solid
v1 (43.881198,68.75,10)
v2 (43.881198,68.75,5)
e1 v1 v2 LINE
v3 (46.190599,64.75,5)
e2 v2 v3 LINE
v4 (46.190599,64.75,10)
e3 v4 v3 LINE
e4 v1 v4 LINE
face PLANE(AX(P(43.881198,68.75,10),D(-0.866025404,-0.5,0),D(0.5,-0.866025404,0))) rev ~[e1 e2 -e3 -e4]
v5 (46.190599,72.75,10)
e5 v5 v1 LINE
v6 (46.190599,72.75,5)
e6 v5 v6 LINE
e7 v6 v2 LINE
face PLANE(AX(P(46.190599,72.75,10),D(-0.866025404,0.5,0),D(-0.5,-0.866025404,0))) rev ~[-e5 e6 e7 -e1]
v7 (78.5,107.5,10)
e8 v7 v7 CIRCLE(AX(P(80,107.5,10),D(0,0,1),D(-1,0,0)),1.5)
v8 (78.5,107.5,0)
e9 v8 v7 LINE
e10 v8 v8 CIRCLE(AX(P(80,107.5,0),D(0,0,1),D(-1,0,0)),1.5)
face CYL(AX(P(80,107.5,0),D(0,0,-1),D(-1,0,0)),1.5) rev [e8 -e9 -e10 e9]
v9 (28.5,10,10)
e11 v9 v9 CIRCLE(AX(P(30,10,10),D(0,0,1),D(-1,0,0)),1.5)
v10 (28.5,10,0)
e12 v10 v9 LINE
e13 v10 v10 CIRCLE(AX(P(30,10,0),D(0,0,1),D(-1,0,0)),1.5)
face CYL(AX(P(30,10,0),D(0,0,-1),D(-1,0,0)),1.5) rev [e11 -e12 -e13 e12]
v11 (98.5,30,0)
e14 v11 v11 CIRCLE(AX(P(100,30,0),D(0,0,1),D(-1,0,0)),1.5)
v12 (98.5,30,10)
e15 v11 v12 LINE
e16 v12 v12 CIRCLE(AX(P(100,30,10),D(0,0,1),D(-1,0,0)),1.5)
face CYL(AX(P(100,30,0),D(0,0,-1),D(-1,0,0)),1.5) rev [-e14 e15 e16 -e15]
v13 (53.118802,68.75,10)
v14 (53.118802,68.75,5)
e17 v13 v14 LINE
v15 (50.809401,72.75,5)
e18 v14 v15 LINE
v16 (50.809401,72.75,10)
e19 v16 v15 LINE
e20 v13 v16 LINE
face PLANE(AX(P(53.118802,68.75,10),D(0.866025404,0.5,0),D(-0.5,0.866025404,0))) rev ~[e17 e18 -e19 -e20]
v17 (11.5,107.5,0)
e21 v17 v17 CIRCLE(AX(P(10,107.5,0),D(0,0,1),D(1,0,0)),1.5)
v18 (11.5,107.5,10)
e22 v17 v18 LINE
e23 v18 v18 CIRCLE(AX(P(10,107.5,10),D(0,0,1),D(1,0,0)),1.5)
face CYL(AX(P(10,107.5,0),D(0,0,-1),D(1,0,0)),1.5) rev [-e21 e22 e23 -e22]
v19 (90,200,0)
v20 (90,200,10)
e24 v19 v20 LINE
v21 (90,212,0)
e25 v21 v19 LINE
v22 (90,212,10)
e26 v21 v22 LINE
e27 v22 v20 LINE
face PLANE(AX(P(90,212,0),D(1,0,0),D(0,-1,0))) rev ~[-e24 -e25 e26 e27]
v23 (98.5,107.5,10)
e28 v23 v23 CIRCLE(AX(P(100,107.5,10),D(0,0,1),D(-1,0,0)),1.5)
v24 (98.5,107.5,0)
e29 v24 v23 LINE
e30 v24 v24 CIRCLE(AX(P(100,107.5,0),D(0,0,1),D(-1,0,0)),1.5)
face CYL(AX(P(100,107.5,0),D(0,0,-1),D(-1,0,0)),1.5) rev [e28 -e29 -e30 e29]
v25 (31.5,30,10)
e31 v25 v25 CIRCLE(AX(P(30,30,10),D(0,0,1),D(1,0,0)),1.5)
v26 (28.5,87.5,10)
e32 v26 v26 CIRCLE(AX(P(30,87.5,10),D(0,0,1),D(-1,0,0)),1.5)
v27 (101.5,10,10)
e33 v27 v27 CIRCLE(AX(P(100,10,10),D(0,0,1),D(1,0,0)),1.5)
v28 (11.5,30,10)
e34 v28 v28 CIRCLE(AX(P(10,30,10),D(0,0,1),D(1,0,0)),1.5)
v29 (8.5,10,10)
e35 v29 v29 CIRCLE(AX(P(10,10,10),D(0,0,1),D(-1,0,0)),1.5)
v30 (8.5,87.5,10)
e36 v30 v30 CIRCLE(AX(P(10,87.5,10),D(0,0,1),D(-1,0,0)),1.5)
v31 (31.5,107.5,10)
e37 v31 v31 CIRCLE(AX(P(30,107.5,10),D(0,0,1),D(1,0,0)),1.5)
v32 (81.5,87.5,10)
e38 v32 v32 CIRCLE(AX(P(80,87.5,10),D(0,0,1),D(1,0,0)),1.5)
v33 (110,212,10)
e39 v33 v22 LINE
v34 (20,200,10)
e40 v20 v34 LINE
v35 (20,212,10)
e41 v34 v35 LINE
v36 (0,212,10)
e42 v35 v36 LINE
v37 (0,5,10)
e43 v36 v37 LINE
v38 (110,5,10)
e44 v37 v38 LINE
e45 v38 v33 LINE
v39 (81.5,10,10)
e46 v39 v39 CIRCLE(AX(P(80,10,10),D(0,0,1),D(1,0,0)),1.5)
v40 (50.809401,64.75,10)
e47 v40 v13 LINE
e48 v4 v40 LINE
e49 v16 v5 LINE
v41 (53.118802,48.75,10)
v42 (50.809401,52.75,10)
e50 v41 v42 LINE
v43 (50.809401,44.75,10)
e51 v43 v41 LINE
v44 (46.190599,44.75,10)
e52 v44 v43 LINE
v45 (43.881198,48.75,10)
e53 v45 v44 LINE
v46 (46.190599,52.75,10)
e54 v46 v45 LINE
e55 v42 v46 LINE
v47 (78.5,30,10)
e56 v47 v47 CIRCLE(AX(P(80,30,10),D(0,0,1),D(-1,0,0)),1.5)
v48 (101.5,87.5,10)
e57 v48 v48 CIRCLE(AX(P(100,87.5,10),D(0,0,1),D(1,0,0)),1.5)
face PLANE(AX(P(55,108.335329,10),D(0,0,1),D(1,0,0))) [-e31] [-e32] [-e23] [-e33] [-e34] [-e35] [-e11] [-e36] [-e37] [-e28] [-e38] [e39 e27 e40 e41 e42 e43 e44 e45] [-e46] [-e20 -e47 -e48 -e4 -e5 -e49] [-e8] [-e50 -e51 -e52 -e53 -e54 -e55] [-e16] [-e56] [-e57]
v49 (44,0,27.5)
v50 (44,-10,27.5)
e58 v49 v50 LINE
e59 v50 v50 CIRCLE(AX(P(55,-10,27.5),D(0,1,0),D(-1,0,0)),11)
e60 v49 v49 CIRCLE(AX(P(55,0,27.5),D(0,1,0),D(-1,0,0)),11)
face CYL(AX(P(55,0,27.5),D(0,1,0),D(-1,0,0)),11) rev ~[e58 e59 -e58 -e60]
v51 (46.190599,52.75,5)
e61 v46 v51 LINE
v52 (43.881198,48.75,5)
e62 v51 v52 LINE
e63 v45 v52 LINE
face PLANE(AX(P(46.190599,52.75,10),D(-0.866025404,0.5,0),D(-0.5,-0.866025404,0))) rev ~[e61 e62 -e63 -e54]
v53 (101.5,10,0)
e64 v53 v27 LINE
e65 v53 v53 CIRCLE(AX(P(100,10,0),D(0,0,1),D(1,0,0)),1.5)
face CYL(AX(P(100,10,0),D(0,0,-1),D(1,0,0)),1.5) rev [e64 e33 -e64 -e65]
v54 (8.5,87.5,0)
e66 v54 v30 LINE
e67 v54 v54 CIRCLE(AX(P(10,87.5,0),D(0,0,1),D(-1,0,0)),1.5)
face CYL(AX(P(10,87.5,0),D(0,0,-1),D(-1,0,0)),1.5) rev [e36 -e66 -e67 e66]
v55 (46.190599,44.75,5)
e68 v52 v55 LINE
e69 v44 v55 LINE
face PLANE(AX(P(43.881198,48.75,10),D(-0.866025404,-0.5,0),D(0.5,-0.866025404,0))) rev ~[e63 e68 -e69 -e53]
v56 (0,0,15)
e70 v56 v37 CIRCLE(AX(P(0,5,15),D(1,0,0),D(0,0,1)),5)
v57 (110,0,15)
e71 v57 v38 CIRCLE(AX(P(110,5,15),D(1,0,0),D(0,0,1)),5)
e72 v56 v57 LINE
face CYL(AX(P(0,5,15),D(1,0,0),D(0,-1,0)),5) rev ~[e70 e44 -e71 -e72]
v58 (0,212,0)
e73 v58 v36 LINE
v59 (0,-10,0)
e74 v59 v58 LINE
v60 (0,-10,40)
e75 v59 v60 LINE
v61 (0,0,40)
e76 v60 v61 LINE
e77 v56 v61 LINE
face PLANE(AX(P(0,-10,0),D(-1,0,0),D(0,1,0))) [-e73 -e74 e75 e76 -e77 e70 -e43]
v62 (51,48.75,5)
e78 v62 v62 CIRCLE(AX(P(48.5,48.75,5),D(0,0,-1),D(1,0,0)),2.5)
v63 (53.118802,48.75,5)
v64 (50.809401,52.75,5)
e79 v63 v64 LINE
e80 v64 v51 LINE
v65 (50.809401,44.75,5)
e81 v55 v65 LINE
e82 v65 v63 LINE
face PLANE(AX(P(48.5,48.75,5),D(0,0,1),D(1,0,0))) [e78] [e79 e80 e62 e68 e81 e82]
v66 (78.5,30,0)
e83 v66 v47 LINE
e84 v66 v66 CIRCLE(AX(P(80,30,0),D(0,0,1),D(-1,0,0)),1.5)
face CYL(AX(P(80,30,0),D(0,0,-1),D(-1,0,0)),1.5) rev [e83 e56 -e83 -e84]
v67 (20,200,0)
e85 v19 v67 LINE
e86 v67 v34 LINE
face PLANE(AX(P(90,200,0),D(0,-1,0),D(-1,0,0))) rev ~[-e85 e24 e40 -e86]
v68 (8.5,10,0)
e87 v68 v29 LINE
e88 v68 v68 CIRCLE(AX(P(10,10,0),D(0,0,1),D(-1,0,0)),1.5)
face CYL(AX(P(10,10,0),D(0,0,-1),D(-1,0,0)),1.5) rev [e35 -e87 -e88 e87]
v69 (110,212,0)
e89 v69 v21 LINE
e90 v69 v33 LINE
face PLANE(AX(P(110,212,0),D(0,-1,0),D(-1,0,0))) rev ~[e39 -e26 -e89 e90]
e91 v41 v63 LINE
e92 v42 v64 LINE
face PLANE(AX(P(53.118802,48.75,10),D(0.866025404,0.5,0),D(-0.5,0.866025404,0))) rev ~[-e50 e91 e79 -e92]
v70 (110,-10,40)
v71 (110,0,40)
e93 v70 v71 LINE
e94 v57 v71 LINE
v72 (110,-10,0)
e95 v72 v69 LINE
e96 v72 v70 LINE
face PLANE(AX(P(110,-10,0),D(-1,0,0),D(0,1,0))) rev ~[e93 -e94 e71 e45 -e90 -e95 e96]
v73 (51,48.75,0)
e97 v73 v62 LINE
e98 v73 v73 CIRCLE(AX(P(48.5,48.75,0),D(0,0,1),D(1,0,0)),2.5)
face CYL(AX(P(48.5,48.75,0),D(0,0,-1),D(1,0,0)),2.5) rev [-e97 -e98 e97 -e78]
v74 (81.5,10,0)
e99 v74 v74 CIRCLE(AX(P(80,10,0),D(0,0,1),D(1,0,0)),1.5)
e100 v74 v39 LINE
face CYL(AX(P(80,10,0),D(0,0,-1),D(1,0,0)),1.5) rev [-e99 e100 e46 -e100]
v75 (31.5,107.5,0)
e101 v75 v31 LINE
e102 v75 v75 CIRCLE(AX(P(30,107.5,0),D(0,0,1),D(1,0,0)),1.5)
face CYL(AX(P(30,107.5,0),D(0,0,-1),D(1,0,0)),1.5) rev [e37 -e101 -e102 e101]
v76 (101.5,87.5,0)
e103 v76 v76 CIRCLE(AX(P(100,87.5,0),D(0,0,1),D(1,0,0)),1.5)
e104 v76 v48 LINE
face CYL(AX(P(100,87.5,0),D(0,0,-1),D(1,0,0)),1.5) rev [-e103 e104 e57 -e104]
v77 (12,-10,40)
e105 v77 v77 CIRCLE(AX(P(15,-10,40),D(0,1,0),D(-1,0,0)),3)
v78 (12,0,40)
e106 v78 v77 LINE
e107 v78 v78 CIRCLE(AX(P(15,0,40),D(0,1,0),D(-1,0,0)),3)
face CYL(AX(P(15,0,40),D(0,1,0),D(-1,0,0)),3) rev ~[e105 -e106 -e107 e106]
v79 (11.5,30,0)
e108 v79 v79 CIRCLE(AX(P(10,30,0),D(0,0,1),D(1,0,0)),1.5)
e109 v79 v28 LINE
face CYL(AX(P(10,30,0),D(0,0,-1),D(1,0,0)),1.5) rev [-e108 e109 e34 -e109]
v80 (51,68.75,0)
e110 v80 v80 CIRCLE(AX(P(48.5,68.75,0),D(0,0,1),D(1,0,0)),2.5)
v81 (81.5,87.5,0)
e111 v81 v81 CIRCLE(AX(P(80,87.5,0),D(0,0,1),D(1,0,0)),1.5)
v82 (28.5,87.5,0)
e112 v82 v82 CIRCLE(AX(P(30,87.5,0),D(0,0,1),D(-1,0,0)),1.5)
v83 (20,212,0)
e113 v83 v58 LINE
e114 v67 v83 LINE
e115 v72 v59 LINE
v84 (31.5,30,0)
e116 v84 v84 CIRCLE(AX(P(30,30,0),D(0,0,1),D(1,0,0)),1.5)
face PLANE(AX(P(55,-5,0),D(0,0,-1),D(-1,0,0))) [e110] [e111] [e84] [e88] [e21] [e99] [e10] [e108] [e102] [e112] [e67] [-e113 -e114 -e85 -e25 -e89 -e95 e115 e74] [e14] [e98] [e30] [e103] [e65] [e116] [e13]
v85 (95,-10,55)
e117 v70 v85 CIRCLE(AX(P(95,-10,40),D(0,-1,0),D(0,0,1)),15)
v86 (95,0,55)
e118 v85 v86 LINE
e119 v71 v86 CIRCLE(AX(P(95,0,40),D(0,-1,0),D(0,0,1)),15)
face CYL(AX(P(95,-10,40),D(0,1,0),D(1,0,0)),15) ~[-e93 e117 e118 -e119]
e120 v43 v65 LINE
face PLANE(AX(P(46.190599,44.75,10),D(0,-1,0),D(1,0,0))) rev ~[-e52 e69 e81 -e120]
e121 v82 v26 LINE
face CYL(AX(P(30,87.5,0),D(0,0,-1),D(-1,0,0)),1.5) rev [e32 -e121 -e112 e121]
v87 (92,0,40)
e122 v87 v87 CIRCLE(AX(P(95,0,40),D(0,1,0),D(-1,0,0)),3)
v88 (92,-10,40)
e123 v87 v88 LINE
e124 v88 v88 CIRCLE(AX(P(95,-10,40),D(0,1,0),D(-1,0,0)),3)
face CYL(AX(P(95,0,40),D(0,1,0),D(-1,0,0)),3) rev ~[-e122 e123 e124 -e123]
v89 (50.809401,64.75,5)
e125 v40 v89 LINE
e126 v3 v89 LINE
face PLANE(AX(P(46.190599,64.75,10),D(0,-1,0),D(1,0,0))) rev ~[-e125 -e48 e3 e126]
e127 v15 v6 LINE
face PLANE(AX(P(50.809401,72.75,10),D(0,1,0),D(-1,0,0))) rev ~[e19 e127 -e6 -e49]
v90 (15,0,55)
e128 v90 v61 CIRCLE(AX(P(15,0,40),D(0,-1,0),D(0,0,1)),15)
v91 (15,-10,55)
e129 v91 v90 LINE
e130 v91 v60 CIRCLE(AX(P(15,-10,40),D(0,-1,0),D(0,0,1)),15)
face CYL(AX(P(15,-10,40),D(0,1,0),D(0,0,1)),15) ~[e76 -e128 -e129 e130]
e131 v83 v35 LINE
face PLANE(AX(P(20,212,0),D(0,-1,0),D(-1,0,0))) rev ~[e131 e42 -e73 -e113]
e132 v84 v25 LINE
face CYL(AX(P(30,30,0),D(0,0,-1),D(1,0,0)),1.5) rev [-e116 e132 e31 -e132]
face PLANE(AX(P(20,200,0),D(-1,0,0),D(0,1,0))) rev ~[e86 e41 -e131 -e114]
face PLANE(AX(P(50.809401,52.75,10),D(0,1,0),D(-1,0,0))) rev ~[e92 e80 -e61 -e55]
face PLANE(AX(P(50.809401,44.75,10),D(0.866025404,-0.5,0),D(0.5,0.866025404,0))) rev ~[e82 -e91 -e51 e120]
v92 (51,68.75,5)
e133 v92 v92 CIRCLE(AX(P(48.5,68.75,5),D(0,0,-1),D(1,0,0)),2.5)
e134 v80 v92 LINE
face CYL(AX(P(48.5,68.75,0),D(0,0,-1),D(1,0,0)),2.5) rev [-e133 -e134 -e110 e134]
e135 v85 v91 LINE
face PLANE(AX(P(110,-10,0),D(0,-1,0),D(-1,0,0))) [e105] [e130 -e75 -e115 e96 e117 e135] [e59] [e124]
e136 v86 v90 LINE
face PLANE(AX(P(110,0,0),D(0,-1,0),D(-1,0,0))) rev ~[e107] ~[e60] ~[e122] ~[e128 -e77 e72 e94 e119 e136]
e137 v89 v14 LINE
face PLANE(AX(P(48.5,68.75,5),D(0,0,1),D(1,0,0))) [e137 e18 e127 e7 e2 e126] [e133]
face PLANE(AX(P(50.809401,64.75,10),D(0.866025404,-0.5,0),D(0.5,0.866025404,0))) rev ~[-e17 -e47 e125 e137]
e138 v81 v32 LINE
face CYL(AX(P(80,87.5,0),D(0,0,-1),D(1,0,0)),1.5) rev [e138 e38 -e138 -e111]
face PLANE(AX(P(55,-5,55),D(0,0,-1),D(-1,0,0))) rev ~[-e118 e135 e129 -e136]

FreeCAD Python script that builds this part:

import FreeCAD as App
import Part
import Sketcher
Q = App.Units.Quantity


def edges_at(feature, points):
    """Names of the edges that pass closest to the given points."""
    edges = feature.Shape.Edges
    near = lambda p: min(range(len(edges)), key=lambda i: edges[i].distToShape(Part.Vertex(*p))[0])
    return sorted({f"Edge{near(p) + 1}" for p in points})


def add_polygon(sketch, points):
    """Adds a closed chain of lines whose ends are joined by coincident constraints."""
    first, n = sketch.GeometryCount, len(points)
    for a, b in zip(points, points[1:] + points[:1]):
        sketch.addGeometry(Part.LineSegment(App.Vector(*a, 0), App.Vector(*b, 0)), False)
    for i in range(n):
        sketch.addConstraint(Sketcher.Constraint("Coincident", first + i, 2, first + (i + 1) % n, 1))

doc = App.newDocument("Part")
body = doc.addObject("PartDesign::Body", "Body")

# Sketch on XY plane
sketch1 = body.newObject("Sketcher::SketchObject", "Sketch")
sketch1.AttachmentSupport = (doc.getObject("XY_Plane"), [""])
sketch1.MapMode = "FlatFace"
add_polygon(sketch1, [(110, 0), (110, 212), (90, 212), (90, 200), (20, 200), (20, 212), (0, 212), (0, 0)])  # lines 0-7
sketch1.addGeometry(Part.Circle(App.Vector(10, 10, 0), App.Vector(0, 0, 1), 1.5), False)  # 8
sketch1.addGeometry(Part.Circle(App.Vector(30, 10, 0), App.Vector(0, 0, 1), 1.5), False)  # 9
sketch1.addGeometry(Part.Circle(App.Vector(10, 30, 0), App.Vector(0, 0, 1), 1.5), False)  # 10
sketch1.addGeometry(Part.Circle(App.Vector(30, 30, 0), App.Vector(0, 0, 1), 1.5), False)  # 11
sketch1.addGeometry(Part.Circle(App.Vector(48.5, 48.8, 0), App.Vector(0, 0, 1), 2.5), False)  # 12
sketch1.addGeometry(Part.Circle(App.Vector(80, 10, 0), App.Vector(0, 0, 1), 1.5), False)  # 13
sketch1.addGeometry(Part.Circle(App.Vector(100, 10, 0), App.Vector(0, 0, 1), 1.5), False)  # 14
sketch1.addGeometry(Part.Circle(App.Vector(80, 30, 0), App.Vector(0, 0, 1), 1.5), False)  # 15
sketch1.addGeometry(Part.Circle(App.Vector(100, 30, 0), App.Vector(0, 0, 1), 1.5), False)  # 16
sketch1.addGeometry(Part.Circle(App.Vector(48.5, 68.8, 0), App.Vector(0, 0, 1), 2.5), False)  # 17
sketch1.addGeometry(Part.Circle(App.Vector(10, 87.5, 0), App.Vector(0, 0, 1), 1.5), False)  # 18
sketch1.addGeometry(Part.Circle(App.Vector(30, 87.5, 0), App.Vector(0, 0, 1), 1.5), False)  # 19
sketch1.addGeometry(Part.Circle(App.Vector(10, 107.5, 0), App.Vector(0, 0, 1), 1.5), False)  # 20
sketch1.addGeometry(Part.Circle(App.Vector(30, 107.5, 0), App.Vector(0, 0, 1), 1.5), False)  # 21
sketch1.addGeometry(Part.Circle(App.Vector(80, 87.5, 0), App.Vector(0, 0, 1), 1.5), False)  # 22
sketch1.addGeometry(Part.Circle(App.Vector(100, 87.5, 0), App.Vector(0, 0, 1), 1.5), False)  # 23
sketch1.addGeometry(Part.Circle(App.Vector(80, 107.5, 0), App.Vector(0, 0, 1), 1.5), False)  # 24
sketch1.addGeometry(Part.Circle(App.Vector(100, 107.5, 0), App.Vector(0, 0, 1), 1.5), False)  # 25
sketch1.addConstraint(Sketcher.Constraint("Vertical", 0))
sketch1.addConstraint(Sketcher.Constraint("Horizontal", 1))
sketch1.addConstraint(Sketcher.Constraint("Vertical", 2))
sketch1.addConstraint(Sketcher.Constraint("Horizontal", 3))
sketch1.addConstraint(Sketcher.Constraint("Vertical", 4))
sketch1.addConstraint(Sketcher.Constraint("Horizontal", 5))
sketch1.addConstraint(Sketcher.Constraint("Vertical", 6))
sketch1.addConstraint(Sketcher.Constraint("Horizontal", 7))
sketch1.addConstraint(Sketcher.Constraint("Coincident", 6, 2, -1, 1))
sketch1.addConstraint(Sketcher.Constraint("Equal", 8, 9))
sketch1.addConstraint(Sketcher.Constraint("Equal", 9, 10))
sketch1.addConstraint(Sketcher.Constraint("Equal", 10, 11))
sketch1.addConstraint(Sketcher.Constraint("Equal", 11, 13))
sketch1.addConstraint(Sketcher.Constraint("Equal", 13, 14))
sketch1.addConstraint(Sketcher.Constraint("Equal", 14, 15))
sketch1.addConstraint(Sketcher.Constraint("Equal", 15, 16))
sketch1.addConstraint(Sketcher.Constraint("Equal", 12, 17))
sketch1.addConstraint(Sketcher.Constraint("Equal", 16, 18))
sketch1.addConstraint(Sketcher.Constraint("Equal", 18, 19))
sketch1.addConstraint(Sketcher.Constraint("Equal", 19, 20))
sketch1.addConstraint(Sketcher.Constraint("Equal", 20, 21))
sketch1.addConstraint(Sketcher.Constraint("Equal", 21, 22))
sketch1.addConstraint(Sketcher.Constraint("Equal", 22, 23))
sketch1.addConstraint(Sketcher.Constraint("Equal", 23, 24))
sketch1.addConstraint(Sketcher.Constraint("Equal", 24, 25))
sketch1.addConstraint(Sketcher.Constraint("Horizontal", 8, 3, 9, 3))
sketch1.addConstraint(Sketcher.Constraint("Horizontal", 10, 3, 11, 3))
sketch1.addConstraint(Sketcher.Constraint("Horizontal", 9, 3, 13, 3))
sketch1.addConstraint(Sketcher.Constraint("Horizontal", 13, 3, 14, 3))
sketch1.addConstraint(Sketcher.Constraint("Horizontal", 11, 3, 15, 3))
sketch1.addConstraint(Sketcher.Constraint("Horizontal", 15, 3, 16, 3))
sketch1.addConstraint(Sketcher.Constraint("Horizontal", 18, 3, 19, 3))
sketch1.addConstraint(Sketcher.Constraint("Horizontal", 20, 3, 21, 3))
sketch1.addConstraint(Sketcher.Constraint("Horizontal", 19, 3, 22, 3))
sketch1.addConstraint(Sketcher.Constraint("Horizontal", 22, 3, 23, 3))
sketch1.addConstraint(Sketcher.Constraint("Horizontal", 21, 3, 24, 3))
sketch1.addConstraint(Sketcher.Constraint("Horizontal", 24, 3, 25, 3))
sketch1.addConstraint(Sketcher.Constraint("Horizontal", 1, 2, 4, 2))
sketch1.addConstraint(Sketcher.Constraint("Vertical", 8, 3, 10, 3))
sketch1.addConstraint(Sketcher.Constraint("Vertical", 9, 3, 11, 3))
sketch1.addConstraint(Sketcher.Constraint("Vertical", 13, 3, 15, 3))
sketch1.addConstraint(Sketcher.Constraint("Vertical", 14, 3, 16, 3))
sketch1.addConstraint(Sketcher.Constraint("Vertical", 12, 3, 17, 3))
sketch1.addConstraint(Sketcher.Constraint("Vertical", 10, 3, 18, 3))
sketch1.addConstraint(Sketcher.Constraint("Vertical", 11, 3, 19, 3))
sketch1.addConstraint(Sketcher.Constraint("Vertical", 18, 3, 20, 3))
sketch1.addConstraint(Sketcher.Constraint("Vertical", 19, 3, 21, 3))
sketch1.addConstraint(Sketcher.Constraint("Vertical", 15, 3, 22, 3))
sketch1.addConstraint(Sketcher.Constraint("Vertical", 16, 3, 23, 3))
sketch1.addConstraint(Sketcher.Constraint("Vertical", 22, 3, 24, 3))
sketch1.addConstraint(Sketcher.Constraint("Vertical", 23, 3, 25, 3))
sketch1.addConstraint(Sketcher.Constraint("Equal", 1, 5))
sketch1.addConstraint(Sketcher.Constraint("Diameter", 8, 3.0))
sketch1.addConstraint(Sketcher.Constraint("Diameter", 12, 5.0))
sketch1.addConstraint(Sketcher.Constraint("DistanceX", 1, 2, 1, 1, 20.0))
sketch1.addConstraint(Sketcher.Constraint("DistanceX", 3, 2, 3, 1, 70.0))
sketch1.addConstraint(Sketcher.Constraint("DistanceY", 0, 1, 0, 2, 212.0))
sketch1.addConstraint(Sketcher.Constraint("DistanceY", 2, 2, 2, 1, 12.0))
sketch1.addConstraint(Sketcher.Constraint("DistanceX", -1, 1, 8, 3, 10.0))
sketch1.addConstraint(Sketcher.Constraint("DistanceY", -1, 1, 8, 3, 10.0))
sketch1.addConstraint(Sketcher.Constraint("DistanceX", -1, 1, 9, 3, 30.0))
sketch1.addConstraint(Sketcher.Constraint("DistanceY", -1, 1, 10, 3, 30.0))
sketch1.addConstraint(Sketcher.Constraint("DistanceX", -1, 1, 13, 3, 80.0))
sketch1.addConstraint(Sketcher.Constraint("DistanceX", -1, 1, 14, 3, 100.0))
sketch1.addConstraint(Sketcher.Constraint("DistanceY", 12, 3, 17, 3, 20.0))
sketch1.addConstraint(Sketcher.Constraint("DistanceY", 18, 3, 20, 3, 20.0))
sketch1.addConstraint(Sketcher.Constraint("DistanceX", -1, 1, 12, 3, 48.5))
sketch1.addConstraint(Sketcher.Constraint("DistanceY", -1, 1, 18, 3, 87.5))
sketch1.addConstraint(Sketcher.Constraint("DistanceY", -1, 1, 12, 3, 48.75))
pad1 = body.newObject("PartDesign::Pad", "Pad")
pad1.Profile = sketch1
pad1.Length = 10

# Sketch on XY plane
sketch2 = body.newObject("Sketcher::SketchObject", "Sketch001")
sketch2.AttachmentSupport = (doc.getObject("XY_Plane"), [""])
sketch2.MapMode = "FlatFace"
add_polygon(sketch2, [(110, 0), (110, -10), (0, -10), (0, 0)])  # lines 0-3
sketch2.addConstraint(Sketcher.Constraint("Vertical", 0))
sketch2.addConstraint(Sketcher.Constraint("Horizontal", 1))
sketch2.addConstraint(Sketcher.Constraint("Vertical", 2))
sketch2.addConstraint(Sketcher.Constraint("Horizontal", 3))
sketch2.addConstraint(Sketcher.Constraint("Coincident", 2, 2, -1, 1))
sketch2.addConstraint(Sketcher.Constraint("DistanceX", 1, 2, 1, 1, 110.0))
sketch2.addConstraint(Sketcher.Constraint("DistanceY", 0, 2, 0, 1, 10.0))
pad2 = body.newObject("PartDesign::Pad", "Pad001")
pad2.Profile = sketch2
pad2.Length = 55

# Sketch on XZ plane
sketch3 = body.newObject("Sketcher::SketchObject", "Sketch002")
sketch3.AttachmentSupport = (doc.getObject("XZ_Plane"), [""])
sketch3.MapMode = "FlatFace"
sketch3.addGeometry(Part.Circle(App.Vector(95, 40, 0), App.Vector(0, 0, 1), 3), False)
sketch3.addGeometry(Part.Circle(App.Vector(15, 40, 0), App.Vector(0, 0, 1), 3), False)
sketch3.addGeometry(Part.Circle(App.Vector(55, 27.5, 0), App.Vector(0, 0, 1), 11), False)
sketch3.addConstraint(Sketcher.Constraint("Equal", 0, 1))
sketch3.addConstraint(Sketcher.Constraint("Horizontal", 0, 3, 1, 3))
sketch3.addConstraint(Sketcher.Constraint("Diameter", 0, 6.0))
sketch3.addConstraint(Sketcher.Constraint("Diameter", 2, 22.0))
sketch3.addConstraint(Sketcher.Constraint("DistanceX", -1, 1, 0, 3, 95.0))
sketch3.addConstraint(Sketcher.Constraint("DistanceY", -1, 1, 0, 3, 40.0))
sketch3.addConstraint(Sketcher.Constraint("DistanceX", -1, 1, 1, 3, 15.0))
sketch3.addConstraint(Sketcher.Constraint("DistanceX", -1, 1, 2, 3, 55.0))
sketch3.addConstraint(Sketcher.Constraint("DistanceY", -1, 1, 2, 3, 27.5))
pocket1 = body.newObject("PartDesign::Pocket", "Pocket")
pocket1.Profile = sketch3
pocket1.Type = "ThroughAll"
pocket1.Reversed = True
doc.recompute()

fillet = body.newObject("PartDesign::Fillet", "Fillet")
fillet.Base = (pocket1, edges_at(pocket1, [(55, 0, 10)]))
fillet.Radius = 5
doc.recompute()

fillet2 = body.newObject("PartDesign::Fillet", "Fillet001")
fillet2.Base = (fillet, edges_at(fillet, [(0, -5, 55), (110, -5, 55)]))
fillet2.Radius = 15

# Sketch on XY plane
sketch4 = body.newObject("Sketcher::SketchObject", "Sketch003")
sketch4.AttachmentSupport = (doc.getObject("XY_Plane"), [""])
sketch4.MapMode = "FlatFace"
sketch4.AttachmentOffset = App.Placement(App.Vector(0, 0, 10), App.Rotation())
add_polygon(sketch4, [(46.2, 72.8), (43.9, 68.8), (46.2, 64.8), (50.8, 64.8), (53.1, 68.8), (50.8, 72.8)])  # lines 0-5
add_polygon(sketch4, [(50.8, 52.8), (46.2, 52.8), (43.9, 48.8), (46.2, 44.8), (50.8, 44.8), (53.1, 48.8)])  # lines 6-11
sketch4.addConstraint(Sketcher.Constraint("Horizontal", 2))
sketch4.addConstraint(Sketcher.Constraint("Horizontal", 5))
sketch4.addConstraint(Sketcher.Constraint("Horizontal", 6))
sketch4.addConstraint(Sketcher.Constraint("Horizontal", 9))
sketch4.addConstraint(Sketcher.Constraint("Parallel", 0, 3))
sketch4.addConstraint(Sketcher.Constraint("Parallel", 1, 4))
sketch4.addConstraint(Sketcher.Constraint("Parallel", 3, 7))
sketch4.addConstraint(Sketcher.Constraint("Parallel", 4, 8))
sketch4.addConstraint(Sketcher.Constraint("Parallel", 7, 10))
sketch4.addConstraint(Sketcher.Constraint("Parallel", 8, 11))
sketch4.addConstraint(Sketcher.Constraint("Horizontal", 0, 2, 3, 2))
sketch4.addConstraint(Sketcher.Constraint("Horizontal", 7, 2, 10, 2))
sketch4.addConstraint(Sketcher.Constraint("Vertical", 2, 2, 4, 2))
sketch4.addConstraint(Sketcher.Constraint("Vertical", 1, 2, 5, 2))
sketch4.addConstraint(Sketcher.Constraint("Vertical", 5, 2, 6, 2))
sketch4.addConstraint(Sketcher.Constraint("Vertical", 0, 2, 7, 2))
sketch4.addConstraint(Sketcher.Constraint("Vertical", 6, 2, 8, 2))
sketch4.addConstraint(Sketcher.Constraint("Vertical", 4, 2, 9, 2))
sketch4.addConstraint(Sketcher.Constraint("Angle", 0, Q("-120 deg")))
sketch4.addConstraint(Sketcher.Constraint("DistanceY", 1, 2, 0, 2, 4.0))
sketch4.addConstraint(Sketcher.Constraint("DistanceY", 6, 2, 1, 2, 12.0))
sketch4.addConstraint(Sketcher.Constraint("DistanceY", -1, 1, 0, 2, 68.75))
sketch4.addConstraint(Sketcher.Constraint("DistanceX", -1, 1, 1, 2, 46.190599))
sketch4.addConstraint(Sketcher.Constraint("DistanceX", -1, 1, 2, 2, 50.809401))
pocket2 = body.newObject("PartDesign::Pocket", "Pocket001")
pocket2.Profile = sketch4
pocket2.Length = 5

doc.recompute()
